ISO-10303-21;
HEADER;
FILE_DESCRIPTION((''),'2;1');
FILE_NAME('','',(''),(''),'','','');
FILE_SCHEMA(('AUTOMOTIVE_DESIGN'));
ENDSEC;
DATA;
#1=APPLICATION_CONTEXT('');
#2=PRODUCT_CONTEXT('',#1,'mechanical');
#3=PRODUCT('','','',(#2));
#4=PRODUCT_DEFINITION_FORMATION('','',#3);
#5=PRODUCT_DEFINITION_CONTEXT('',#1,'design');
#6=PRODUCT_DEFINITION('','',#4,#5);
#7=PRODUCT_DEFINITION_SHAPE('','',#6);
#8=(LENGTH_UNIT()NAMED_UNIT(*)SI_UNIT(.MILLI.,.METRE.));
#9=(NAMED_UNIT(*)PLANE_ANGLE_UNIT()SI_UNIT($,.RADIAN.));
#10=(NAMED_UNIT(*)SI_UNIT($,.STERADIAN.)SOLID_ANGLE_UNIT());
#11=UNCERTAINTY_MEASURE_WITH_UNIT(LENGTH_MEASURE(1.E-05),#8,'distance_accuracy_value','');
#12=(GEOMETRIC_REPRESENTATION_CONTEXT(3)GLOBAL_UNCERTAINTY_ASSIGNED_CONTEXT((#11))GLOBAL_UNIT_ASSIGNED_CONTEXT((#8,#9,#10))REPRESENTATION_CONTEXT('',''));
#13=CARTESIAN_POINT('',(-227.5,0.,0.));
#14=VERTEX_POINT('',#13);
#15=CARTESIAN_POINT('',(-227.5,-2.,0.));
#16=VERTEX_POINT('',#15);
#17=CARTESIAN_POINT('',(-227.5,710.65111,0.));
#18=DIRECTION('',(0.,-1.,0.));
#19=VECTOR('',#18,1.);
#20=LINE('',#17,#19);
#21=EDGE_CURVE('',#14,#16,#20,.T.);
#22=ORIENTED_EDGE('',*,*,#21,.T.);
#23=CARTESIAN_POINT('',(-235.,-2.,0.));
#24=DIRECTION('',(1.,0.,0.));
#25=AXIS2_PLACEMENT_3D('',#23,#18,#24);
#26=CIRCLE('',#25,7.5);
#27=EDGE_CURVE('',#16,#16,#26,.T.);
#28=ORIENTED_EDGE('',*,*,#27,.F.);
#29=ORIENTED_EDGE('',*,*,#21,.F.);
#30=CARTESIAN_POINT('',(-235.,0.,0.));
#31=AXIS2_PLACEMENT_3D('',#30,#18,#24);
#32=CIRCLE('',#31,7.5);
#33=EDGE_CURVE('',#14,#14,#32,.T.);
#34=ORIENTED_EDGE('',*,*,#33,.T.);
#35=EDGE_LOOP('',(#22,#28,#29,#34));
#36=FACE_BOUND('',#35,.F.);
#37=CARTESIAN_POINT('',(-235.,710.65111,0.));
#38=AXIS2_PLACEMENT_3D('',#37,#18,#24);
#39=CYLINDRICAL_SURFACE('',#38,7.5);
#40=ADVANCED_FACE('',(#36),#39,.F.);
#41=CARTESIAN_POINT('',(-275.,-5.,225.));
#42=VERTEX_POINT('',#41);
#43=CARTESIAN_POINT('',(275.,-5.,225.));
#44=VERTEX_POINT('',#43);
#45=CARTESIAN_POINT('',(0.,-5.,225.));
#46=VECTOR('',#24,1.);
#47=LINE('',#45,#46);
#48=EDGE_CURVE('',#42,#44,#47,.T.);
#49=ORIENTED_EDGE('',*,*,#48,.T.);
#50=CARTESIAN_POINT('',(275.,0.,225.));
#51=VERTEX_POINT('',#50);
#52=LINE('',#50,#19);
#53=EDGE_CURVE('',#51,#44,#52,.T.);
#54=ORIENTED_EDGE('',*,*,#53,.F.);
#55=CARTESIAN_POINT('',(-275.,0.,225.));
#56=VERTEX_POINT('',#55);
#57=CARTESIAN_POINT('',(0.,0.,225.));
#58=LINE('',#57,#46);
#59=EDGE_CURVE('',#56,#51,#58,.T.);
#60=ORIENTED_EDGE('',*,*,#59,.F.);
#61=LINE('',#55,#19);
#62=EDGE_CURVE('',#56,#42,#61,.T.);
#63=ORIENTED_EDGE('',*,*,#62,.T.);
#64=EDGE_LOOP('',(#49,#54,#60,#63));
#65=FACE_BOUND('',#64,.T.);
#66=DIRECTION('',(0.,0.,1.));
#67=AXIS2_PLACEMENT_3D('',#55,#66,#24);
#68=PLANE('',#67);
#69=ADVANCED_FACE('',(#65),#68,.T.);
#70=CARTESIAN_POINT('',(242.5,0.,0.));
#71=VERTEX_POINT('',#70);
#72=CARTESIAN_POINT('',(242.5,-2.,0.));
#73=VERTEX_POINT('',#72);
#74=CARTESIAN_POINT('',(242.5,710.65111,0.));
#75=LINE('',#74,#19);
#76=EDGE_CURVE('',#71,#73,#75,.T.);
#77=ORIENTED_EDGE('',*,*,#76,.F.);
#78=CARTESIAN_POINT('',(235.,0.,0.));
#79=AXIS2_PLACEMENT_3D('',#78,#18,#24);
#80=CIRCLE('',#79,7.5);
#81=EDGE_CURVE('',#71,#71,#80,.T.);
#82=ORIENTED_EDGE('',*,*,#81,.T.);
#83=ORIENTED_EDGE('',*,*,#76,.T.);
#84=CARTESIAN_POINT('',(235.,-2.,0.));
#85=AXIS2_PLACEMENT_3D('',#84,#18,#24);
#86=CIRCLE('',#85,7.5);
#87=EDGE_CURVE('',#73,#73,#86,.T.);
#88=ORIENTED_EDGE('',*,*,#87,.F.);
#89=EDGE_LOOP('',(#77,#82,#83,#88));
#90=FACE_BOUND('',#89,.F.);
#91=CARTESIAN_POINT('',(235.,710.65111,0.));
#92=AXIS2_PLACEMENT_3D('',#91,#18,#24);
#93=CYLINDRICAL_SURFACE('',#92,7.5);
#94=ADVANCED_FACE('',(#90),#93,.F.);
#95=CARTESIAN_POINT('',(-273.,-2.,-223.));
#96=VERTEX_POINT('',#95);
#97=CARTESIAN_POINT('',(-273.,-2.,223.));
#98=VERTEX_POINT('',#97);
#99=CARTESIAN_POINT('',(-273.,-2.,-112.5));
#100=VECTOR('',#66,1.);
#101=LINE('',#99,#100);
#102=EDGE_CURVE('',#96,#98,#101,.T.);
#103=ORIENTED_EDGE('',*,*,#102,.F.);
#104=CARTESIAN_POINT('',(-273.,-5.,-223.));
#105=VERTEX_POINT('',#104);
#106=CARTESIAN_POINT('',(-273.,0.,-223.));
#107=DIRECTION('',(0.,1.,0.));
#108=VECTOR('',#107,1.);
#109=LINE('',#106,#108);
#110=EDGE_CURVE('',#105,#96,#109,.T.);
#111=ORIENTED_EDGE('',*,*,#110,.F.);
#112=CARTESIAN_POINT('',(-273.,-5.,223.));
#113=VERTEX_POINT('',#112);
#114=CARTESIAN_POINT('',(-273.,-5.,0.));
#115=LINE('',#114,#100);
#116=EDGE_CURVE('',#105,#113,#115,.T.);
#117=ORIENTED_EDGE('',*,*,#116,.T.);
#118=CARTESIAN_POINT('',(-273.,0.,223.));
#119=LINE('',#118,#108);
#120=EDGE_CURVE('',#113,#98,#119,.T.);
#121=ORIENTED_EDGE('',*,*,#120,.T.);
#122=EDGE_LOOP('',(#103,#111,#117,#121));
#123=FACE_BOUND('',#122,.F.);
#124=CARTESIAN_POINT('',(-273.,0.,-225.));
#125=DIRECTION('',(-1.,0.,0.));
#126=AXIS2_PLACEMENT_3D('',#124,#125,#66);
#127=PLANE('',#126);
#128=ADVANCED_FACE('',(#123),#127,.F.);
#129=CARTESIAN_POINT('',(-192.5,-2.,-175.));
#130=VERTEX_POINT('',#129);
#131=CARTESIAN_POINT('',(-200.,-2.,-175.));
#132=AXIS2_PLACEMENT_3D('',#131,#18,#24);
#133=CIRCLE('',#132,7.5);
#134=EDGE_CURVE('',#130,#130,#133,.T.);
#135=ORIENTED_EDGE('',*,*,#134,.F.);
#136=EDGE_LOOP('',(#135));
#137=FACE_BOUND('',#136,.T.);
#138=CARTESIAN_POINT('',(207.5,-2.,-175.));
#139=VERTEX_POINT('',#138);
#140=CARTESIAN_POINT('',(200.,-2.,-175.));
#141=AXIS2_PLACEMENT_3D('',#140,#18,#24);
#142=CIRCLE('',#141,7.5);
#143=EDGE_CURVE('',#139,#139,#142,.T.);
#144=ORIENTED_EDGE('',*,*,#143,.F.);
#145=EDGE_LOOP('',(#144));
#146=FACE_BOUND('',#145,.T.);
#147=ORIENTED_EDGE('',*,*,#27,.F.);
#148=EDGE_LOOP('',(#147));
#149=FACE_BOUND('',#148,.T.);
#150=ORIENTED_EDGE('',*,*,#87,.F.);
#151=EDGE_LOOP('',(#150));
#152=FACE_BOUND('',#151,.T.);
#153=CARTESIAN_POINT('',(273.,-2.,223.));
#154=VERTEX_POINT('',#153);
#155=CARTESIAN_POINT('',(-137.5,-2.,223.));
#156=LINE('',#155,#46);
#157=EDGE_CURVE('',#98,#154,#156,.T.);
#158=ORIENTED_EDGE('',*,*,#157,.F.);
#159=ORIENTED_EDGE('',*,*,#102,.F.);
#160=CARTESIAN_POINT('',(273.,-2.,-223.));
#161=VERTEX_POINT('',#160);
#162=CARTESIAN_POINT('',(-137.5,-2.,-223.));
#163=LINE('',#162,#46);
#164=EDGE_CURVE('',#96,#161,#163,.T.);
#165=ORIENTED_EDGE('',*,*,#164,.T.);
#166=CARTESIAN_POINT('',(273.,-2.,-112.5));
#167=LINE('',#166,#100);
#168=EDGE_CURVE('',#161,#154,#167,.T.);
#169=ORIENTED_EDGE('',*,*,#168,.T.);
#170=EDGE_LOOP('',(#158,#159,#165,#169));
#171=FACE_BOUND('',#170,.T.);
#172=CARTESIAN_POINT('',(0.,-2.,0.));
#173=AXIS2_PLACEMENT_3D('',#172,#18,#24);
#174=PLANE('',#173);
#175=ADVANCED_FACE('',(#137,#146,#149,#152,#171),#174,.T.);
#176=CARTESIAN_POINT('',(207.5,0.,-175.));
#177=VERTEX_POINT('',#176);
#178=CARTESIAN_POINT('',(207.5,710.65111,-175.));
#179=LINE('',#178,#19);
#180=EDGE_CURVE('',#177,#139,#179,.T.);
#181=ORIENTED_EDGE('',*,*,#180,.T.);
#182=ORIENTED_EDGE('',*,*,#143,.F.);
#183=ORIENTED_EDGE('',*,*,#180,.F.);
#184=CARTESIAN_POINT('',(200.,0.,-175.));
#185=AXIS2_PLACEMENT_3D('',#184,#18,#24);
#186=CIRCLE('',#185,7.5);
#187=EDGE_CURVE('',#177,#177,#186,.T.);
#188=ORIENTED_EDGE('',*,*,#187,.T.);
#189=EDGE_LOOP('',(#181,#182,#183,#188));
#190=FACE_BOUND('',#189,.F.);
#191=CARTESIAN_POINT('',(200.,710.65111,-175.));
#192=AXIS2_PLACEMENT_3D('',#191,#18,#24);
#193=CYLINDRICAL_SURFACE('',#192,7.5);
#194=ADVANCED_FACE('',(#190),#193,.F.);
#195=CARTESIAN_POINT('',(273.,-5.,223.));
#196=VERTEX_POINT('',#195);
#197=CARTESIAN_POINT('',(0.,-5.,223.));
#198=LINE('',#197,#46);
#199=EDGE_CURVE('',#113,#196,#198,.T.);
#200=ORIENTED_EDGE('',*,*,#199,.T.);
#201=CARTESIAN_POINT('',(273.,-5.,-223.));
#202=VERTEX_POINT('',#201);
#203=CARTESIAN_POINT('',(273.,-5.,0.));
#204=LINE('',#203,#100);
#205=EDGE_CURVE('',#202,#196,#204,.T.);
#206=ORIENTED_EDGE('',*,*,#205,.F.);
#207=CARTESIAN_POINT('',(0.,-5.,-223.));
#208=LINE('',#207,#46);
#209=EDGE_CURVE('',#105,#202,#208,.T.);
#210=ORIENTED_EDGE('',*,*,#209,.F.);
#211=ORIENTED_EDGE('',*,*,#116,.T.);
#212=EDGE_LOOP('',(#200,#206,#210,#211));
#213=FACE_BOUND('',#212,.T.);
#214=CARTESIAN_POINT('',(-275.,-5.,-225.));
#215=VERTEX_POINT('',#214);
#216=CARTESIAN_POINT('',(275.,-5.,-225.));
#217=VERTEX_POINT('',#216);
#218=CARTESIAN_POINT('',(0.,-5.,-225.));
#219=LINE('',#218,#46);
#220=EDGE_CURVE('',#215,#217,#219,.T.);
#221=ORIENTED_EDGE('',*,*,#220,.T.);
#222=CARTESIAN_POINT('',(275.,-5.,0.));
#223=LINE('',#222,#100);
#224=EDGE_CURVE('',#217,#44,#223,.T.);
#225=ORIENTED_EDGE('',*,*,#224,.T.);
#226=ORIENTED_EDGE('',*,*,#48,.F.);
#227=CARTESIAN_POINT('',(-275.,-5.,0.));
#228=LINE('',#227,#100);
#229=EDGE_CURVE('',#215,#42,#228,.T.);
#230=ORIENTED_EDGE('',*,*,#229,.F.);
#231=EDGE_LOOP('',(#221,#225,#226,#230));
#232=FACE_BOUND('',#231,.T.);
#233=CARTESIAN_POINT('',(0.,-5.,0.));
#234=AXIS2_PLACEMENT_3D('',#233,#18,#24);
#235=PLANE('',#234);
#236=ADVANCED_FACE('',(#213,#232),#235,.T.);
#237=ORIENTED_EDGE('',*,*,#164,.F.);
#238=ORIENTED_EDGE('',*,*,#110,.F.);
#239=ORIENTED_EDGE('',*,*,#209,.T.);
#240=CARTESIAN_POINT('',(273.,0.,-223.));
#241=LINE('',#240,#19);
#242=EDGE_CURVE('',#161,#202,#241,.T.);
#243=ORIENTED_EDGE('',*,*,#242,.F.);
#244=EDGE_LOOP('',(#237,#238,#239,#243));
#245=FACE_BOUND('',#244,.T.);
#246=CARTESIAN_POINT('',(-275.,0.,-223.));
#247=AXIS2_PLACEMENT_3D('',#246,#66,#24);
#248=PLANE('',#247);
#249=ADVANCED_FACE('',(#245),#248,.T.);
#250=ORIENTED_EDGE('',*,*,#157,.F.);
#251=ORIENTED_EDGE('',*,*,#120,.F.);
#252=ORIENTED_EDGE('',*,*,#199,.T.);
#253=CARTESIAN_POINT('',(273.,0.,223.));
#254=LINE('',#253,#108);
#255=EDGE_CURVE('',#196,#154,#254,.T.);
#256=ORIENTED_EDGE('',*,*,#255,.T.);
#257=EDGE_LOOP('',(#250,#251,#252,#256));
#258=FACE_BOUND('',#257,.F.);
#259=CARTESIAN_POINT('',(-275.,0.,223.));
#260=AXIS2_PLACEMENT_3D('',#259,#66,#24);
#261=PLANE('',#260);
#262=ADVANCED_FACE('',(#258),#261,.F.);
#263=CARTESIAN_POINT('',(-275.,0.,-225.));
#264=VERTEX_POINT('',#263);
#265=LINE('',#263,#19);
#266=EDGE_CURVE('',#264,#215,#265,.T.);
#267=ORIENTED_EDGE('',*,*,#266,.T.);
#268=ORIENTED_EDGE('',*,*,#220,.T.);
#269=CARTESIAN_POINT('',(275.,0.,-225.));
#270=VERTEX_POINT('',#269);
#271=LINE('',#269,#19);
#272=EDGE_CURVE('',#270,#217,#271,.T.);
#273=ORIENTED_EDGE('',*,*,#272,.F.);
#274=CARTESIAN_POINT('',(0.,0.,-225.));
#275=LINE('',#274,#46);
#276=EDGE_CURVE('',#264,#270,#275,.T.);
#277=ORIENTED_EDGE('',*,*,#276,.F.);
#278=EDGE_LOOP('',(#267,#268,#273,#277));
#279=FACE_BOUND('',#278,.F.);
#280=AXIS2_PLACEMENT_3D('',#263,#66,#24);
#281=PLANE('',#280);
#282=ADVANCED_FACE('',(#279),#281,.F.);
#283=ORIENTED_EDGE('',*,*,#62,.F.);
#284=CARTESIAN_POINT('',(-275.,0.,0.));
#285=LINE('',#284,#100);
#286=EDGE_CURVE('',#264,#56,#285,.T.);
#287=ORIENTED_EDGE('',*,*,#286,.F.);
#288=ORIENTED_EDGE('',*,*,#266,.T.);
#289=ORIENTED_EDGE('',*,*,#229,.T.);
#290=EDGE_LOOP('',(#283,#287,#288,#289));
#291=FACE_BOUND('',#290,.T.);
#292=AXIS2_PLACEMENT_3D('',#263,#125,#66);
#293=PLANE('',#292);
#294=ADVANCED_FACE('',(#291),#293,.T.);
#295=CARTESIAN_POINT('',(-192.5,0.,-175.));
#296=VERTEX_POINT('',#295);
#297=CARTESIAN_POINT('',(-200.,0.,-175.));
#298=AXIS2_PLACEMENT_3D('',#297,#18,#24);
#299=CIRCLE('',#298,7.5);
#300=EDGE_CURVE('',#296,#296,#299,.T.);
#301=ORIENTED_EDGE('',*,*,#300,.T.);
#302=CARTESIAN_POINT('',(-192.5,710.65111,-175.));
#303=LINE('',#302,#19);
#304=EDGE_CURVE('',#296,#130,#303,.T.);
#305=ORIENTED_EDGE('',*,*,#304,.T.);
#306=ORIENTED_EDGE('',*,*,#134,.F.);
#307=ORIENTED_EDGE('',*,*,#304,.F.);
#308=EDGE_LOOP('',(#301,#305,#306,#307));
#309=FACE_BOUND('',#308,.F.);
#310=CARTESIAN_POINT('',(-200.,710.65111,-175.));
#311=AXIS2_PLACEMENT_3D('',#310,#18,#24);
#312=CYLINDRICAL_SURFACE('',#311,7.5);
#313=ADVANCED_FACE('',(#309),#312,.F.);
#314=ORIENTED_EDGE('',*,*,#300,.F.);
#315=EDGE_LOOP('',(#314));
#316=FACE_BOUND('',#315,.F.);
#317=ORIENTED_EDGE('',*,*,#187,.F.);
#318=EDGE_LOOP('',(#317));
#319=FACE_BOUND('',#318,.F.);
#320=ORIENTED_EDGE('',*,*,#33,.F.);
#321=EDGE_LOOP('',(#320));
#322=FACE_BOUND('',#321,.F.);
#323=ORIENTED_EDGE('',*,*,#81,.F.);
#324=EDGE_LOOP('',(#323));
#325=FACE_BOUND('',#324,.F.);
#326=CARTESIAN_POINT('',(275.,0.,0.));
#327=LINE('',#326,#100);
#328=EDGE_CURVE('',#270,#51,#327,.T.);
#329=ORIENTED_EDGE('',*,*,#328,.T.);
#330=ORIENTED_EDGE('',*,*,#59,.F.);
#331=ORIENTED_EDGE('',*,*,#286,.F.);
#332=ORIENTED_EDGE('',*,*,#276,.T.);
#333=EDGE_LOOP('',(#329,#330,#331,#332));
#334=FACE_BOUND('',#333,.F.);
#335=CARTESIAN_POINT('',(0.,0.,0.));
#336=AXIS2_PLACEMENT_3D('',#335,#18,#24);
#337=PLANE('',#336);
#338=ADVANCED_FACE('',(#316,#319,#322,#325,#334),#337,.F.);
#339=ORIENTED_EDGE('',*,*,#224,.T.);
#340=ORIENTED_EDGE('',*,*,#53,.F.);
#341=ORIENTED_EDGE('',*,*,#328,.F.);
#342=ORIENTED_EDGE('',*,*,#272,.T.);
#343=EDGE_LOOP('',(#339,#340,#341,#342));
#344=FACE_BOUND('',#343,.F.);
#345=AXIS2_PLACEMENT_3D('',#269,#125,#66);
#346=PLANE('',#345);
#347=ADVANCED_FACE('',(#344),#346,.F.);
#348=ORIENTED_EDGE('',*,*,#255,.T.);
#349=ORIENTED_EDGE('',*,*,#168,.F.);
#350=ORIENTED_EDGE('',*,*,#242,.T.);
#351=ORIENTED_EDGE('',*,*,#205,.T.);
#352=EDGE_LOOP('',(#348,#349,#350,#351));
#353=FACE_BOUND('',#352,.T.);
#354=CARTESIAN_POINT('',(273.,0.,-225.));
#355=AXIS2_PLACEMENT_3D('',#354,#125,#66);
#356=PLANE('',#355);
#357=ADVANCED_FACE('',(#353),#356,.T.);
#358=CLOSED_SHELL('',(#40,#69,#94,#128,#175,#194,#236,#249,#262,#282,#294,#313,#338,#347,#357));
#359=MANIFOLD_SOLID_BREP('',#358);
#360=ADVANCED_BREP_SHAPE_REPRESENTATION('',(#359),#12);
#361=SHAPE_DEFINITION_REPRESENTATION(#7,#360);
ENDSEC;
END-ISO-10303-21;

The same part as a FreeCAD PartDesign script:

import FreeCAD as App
import Part
import Sketcher


def faces_at(feature, points):
    """Names of the faces that lie closest to the given points."""
    faces = feature.Shape.Faces
    near = lambda p: min(range(len(faces)), key=lambda i: faces[i].distToShape(Part.Vertex(*p))[0])
    return sorted({f"Face{near(p) + 1}" for p in points})

doc = App.newDocument("Part")
body = doc.addObject("PartDesign::Body", "Body")

sketch1 = body.newObject("Sketcher::SketchObject", "Sketch")
sketch1.AttachmentSupport = (doc.getObject("XZ_Plane"), [""])
sketch1.MapMode = "FlatFace"
sketch1.addGeometry([
    Part.LineSegment(App.Vector(-275, 225, 0), App.Vector(-275, -225, 0)),
    Part.LineSegment(App.Vector(-275, -225, 0), App.Vector(275, -225, 0)),
    Part.LineSegment(App.Vector(275, -225, 0), App.Vector(275, 225, 0)),
    Part.LineSegment(App.Vector(275, 225, 0), App.Vector(-275, 225, 0)),
], False)
sketch1.addConstraint([
    Sketcher.Constraint("Coincident", 0, 2, 1, 1),
    Sketcher.Constraint("Coincident", 1, 2, 2, 1),
    Sketcher.Constraint("Coincident", 2, 2, 3, 1),
    Sketcher.Constraint("Coincident", 3, 2, 0, 1),
    Sketcher.Constraint("Vertical", 0),
    Sketcher.Constraint("Horizontal", 1),
    Sketcher.Constraint("Vertical", 2),
    Sketcher.Constraint("Horizontal", 3),
    Sketcher.Constraint("Symmetric", 0, 2, 2, 2, -1, 1),
    Sketcher.Constraint("DistanceX", 1, 1, 1, 2, 550.0),
    Sketcher.Constraint("DistanceY", 0, 2, 0, 1, 450.0),
])
pad1 = body.newObject("PartDesign::Pad", "Pad")
pad1.Profile = sketch1
pad1.Length = 5
doc.recompute()

thickness = body.newObject("PartDesign::Thickness", "Thickness")
thickness.Base = (pad1, faces_at(pad1, [(0, -5, 0)]))
thickness.Value = 2
thickness.Reversed = True
thickness.Join = "Arc"

sketch2 = body.newObject("Sketcher::SketchObject", "Sketch001")
sketch2.AttachmentSupport = (doc.getObject("XZ_Plane"), [""])
sketch2.MapMode = "FlatFace"
sketch2.addGeometry([
    Part.Circle(App.Vector(-235, 0, 0), App.Vector(0, 0, 1), 8),
    Part.Circle(App.Vector(235, 0, 0), App.Vector(0, 0, 1), 8),
    Part.Circle(App.Vector(200, -175, 0), App.Vector(0, 0, 1), 8),
    Part.Circle(App.Vector(-200, -175, 0), App.Vector(0, 0, 1), 8),
], False)
sketch2.addConstraint([
    Sketcher.Constraint("Equal", 0, 1),
    Sketcher.Constraint("Equal", 1, 2),
    Sketcher.Constraint("Equal", 2, 3),
    Sketcher.Constraint("Symmetric", 0, 3, 1, 3, -1, 1),
    Sketcher.Constraint("Symmetric", 2, 3, 3, 3, -2),
    Sketcher.Constraint("PointOnObject", 0, 3, -1),
    Sketcher.Constraint("Diameter", 0, 15.0),
    Sketcher.Constraint("DistanceX", 0, 3, -1, 1, 235.0),
    Sketcher.Constraint("DistanceX", -1, 1, 2, 3, 200.0),
    Sketcher.Constraint("DistanceY", 2, 3, -1, 1, 175.0),
])
doc.recompute()
hole = body.newObject("PartDesign::Hole", "Hole")
hole.Profile = sketch2
hole.ThreadType = "None"
hole.Diameter = 15
hole.DepthType = "ThroughAll"
hole.Reversed = True

doc.recompute()
